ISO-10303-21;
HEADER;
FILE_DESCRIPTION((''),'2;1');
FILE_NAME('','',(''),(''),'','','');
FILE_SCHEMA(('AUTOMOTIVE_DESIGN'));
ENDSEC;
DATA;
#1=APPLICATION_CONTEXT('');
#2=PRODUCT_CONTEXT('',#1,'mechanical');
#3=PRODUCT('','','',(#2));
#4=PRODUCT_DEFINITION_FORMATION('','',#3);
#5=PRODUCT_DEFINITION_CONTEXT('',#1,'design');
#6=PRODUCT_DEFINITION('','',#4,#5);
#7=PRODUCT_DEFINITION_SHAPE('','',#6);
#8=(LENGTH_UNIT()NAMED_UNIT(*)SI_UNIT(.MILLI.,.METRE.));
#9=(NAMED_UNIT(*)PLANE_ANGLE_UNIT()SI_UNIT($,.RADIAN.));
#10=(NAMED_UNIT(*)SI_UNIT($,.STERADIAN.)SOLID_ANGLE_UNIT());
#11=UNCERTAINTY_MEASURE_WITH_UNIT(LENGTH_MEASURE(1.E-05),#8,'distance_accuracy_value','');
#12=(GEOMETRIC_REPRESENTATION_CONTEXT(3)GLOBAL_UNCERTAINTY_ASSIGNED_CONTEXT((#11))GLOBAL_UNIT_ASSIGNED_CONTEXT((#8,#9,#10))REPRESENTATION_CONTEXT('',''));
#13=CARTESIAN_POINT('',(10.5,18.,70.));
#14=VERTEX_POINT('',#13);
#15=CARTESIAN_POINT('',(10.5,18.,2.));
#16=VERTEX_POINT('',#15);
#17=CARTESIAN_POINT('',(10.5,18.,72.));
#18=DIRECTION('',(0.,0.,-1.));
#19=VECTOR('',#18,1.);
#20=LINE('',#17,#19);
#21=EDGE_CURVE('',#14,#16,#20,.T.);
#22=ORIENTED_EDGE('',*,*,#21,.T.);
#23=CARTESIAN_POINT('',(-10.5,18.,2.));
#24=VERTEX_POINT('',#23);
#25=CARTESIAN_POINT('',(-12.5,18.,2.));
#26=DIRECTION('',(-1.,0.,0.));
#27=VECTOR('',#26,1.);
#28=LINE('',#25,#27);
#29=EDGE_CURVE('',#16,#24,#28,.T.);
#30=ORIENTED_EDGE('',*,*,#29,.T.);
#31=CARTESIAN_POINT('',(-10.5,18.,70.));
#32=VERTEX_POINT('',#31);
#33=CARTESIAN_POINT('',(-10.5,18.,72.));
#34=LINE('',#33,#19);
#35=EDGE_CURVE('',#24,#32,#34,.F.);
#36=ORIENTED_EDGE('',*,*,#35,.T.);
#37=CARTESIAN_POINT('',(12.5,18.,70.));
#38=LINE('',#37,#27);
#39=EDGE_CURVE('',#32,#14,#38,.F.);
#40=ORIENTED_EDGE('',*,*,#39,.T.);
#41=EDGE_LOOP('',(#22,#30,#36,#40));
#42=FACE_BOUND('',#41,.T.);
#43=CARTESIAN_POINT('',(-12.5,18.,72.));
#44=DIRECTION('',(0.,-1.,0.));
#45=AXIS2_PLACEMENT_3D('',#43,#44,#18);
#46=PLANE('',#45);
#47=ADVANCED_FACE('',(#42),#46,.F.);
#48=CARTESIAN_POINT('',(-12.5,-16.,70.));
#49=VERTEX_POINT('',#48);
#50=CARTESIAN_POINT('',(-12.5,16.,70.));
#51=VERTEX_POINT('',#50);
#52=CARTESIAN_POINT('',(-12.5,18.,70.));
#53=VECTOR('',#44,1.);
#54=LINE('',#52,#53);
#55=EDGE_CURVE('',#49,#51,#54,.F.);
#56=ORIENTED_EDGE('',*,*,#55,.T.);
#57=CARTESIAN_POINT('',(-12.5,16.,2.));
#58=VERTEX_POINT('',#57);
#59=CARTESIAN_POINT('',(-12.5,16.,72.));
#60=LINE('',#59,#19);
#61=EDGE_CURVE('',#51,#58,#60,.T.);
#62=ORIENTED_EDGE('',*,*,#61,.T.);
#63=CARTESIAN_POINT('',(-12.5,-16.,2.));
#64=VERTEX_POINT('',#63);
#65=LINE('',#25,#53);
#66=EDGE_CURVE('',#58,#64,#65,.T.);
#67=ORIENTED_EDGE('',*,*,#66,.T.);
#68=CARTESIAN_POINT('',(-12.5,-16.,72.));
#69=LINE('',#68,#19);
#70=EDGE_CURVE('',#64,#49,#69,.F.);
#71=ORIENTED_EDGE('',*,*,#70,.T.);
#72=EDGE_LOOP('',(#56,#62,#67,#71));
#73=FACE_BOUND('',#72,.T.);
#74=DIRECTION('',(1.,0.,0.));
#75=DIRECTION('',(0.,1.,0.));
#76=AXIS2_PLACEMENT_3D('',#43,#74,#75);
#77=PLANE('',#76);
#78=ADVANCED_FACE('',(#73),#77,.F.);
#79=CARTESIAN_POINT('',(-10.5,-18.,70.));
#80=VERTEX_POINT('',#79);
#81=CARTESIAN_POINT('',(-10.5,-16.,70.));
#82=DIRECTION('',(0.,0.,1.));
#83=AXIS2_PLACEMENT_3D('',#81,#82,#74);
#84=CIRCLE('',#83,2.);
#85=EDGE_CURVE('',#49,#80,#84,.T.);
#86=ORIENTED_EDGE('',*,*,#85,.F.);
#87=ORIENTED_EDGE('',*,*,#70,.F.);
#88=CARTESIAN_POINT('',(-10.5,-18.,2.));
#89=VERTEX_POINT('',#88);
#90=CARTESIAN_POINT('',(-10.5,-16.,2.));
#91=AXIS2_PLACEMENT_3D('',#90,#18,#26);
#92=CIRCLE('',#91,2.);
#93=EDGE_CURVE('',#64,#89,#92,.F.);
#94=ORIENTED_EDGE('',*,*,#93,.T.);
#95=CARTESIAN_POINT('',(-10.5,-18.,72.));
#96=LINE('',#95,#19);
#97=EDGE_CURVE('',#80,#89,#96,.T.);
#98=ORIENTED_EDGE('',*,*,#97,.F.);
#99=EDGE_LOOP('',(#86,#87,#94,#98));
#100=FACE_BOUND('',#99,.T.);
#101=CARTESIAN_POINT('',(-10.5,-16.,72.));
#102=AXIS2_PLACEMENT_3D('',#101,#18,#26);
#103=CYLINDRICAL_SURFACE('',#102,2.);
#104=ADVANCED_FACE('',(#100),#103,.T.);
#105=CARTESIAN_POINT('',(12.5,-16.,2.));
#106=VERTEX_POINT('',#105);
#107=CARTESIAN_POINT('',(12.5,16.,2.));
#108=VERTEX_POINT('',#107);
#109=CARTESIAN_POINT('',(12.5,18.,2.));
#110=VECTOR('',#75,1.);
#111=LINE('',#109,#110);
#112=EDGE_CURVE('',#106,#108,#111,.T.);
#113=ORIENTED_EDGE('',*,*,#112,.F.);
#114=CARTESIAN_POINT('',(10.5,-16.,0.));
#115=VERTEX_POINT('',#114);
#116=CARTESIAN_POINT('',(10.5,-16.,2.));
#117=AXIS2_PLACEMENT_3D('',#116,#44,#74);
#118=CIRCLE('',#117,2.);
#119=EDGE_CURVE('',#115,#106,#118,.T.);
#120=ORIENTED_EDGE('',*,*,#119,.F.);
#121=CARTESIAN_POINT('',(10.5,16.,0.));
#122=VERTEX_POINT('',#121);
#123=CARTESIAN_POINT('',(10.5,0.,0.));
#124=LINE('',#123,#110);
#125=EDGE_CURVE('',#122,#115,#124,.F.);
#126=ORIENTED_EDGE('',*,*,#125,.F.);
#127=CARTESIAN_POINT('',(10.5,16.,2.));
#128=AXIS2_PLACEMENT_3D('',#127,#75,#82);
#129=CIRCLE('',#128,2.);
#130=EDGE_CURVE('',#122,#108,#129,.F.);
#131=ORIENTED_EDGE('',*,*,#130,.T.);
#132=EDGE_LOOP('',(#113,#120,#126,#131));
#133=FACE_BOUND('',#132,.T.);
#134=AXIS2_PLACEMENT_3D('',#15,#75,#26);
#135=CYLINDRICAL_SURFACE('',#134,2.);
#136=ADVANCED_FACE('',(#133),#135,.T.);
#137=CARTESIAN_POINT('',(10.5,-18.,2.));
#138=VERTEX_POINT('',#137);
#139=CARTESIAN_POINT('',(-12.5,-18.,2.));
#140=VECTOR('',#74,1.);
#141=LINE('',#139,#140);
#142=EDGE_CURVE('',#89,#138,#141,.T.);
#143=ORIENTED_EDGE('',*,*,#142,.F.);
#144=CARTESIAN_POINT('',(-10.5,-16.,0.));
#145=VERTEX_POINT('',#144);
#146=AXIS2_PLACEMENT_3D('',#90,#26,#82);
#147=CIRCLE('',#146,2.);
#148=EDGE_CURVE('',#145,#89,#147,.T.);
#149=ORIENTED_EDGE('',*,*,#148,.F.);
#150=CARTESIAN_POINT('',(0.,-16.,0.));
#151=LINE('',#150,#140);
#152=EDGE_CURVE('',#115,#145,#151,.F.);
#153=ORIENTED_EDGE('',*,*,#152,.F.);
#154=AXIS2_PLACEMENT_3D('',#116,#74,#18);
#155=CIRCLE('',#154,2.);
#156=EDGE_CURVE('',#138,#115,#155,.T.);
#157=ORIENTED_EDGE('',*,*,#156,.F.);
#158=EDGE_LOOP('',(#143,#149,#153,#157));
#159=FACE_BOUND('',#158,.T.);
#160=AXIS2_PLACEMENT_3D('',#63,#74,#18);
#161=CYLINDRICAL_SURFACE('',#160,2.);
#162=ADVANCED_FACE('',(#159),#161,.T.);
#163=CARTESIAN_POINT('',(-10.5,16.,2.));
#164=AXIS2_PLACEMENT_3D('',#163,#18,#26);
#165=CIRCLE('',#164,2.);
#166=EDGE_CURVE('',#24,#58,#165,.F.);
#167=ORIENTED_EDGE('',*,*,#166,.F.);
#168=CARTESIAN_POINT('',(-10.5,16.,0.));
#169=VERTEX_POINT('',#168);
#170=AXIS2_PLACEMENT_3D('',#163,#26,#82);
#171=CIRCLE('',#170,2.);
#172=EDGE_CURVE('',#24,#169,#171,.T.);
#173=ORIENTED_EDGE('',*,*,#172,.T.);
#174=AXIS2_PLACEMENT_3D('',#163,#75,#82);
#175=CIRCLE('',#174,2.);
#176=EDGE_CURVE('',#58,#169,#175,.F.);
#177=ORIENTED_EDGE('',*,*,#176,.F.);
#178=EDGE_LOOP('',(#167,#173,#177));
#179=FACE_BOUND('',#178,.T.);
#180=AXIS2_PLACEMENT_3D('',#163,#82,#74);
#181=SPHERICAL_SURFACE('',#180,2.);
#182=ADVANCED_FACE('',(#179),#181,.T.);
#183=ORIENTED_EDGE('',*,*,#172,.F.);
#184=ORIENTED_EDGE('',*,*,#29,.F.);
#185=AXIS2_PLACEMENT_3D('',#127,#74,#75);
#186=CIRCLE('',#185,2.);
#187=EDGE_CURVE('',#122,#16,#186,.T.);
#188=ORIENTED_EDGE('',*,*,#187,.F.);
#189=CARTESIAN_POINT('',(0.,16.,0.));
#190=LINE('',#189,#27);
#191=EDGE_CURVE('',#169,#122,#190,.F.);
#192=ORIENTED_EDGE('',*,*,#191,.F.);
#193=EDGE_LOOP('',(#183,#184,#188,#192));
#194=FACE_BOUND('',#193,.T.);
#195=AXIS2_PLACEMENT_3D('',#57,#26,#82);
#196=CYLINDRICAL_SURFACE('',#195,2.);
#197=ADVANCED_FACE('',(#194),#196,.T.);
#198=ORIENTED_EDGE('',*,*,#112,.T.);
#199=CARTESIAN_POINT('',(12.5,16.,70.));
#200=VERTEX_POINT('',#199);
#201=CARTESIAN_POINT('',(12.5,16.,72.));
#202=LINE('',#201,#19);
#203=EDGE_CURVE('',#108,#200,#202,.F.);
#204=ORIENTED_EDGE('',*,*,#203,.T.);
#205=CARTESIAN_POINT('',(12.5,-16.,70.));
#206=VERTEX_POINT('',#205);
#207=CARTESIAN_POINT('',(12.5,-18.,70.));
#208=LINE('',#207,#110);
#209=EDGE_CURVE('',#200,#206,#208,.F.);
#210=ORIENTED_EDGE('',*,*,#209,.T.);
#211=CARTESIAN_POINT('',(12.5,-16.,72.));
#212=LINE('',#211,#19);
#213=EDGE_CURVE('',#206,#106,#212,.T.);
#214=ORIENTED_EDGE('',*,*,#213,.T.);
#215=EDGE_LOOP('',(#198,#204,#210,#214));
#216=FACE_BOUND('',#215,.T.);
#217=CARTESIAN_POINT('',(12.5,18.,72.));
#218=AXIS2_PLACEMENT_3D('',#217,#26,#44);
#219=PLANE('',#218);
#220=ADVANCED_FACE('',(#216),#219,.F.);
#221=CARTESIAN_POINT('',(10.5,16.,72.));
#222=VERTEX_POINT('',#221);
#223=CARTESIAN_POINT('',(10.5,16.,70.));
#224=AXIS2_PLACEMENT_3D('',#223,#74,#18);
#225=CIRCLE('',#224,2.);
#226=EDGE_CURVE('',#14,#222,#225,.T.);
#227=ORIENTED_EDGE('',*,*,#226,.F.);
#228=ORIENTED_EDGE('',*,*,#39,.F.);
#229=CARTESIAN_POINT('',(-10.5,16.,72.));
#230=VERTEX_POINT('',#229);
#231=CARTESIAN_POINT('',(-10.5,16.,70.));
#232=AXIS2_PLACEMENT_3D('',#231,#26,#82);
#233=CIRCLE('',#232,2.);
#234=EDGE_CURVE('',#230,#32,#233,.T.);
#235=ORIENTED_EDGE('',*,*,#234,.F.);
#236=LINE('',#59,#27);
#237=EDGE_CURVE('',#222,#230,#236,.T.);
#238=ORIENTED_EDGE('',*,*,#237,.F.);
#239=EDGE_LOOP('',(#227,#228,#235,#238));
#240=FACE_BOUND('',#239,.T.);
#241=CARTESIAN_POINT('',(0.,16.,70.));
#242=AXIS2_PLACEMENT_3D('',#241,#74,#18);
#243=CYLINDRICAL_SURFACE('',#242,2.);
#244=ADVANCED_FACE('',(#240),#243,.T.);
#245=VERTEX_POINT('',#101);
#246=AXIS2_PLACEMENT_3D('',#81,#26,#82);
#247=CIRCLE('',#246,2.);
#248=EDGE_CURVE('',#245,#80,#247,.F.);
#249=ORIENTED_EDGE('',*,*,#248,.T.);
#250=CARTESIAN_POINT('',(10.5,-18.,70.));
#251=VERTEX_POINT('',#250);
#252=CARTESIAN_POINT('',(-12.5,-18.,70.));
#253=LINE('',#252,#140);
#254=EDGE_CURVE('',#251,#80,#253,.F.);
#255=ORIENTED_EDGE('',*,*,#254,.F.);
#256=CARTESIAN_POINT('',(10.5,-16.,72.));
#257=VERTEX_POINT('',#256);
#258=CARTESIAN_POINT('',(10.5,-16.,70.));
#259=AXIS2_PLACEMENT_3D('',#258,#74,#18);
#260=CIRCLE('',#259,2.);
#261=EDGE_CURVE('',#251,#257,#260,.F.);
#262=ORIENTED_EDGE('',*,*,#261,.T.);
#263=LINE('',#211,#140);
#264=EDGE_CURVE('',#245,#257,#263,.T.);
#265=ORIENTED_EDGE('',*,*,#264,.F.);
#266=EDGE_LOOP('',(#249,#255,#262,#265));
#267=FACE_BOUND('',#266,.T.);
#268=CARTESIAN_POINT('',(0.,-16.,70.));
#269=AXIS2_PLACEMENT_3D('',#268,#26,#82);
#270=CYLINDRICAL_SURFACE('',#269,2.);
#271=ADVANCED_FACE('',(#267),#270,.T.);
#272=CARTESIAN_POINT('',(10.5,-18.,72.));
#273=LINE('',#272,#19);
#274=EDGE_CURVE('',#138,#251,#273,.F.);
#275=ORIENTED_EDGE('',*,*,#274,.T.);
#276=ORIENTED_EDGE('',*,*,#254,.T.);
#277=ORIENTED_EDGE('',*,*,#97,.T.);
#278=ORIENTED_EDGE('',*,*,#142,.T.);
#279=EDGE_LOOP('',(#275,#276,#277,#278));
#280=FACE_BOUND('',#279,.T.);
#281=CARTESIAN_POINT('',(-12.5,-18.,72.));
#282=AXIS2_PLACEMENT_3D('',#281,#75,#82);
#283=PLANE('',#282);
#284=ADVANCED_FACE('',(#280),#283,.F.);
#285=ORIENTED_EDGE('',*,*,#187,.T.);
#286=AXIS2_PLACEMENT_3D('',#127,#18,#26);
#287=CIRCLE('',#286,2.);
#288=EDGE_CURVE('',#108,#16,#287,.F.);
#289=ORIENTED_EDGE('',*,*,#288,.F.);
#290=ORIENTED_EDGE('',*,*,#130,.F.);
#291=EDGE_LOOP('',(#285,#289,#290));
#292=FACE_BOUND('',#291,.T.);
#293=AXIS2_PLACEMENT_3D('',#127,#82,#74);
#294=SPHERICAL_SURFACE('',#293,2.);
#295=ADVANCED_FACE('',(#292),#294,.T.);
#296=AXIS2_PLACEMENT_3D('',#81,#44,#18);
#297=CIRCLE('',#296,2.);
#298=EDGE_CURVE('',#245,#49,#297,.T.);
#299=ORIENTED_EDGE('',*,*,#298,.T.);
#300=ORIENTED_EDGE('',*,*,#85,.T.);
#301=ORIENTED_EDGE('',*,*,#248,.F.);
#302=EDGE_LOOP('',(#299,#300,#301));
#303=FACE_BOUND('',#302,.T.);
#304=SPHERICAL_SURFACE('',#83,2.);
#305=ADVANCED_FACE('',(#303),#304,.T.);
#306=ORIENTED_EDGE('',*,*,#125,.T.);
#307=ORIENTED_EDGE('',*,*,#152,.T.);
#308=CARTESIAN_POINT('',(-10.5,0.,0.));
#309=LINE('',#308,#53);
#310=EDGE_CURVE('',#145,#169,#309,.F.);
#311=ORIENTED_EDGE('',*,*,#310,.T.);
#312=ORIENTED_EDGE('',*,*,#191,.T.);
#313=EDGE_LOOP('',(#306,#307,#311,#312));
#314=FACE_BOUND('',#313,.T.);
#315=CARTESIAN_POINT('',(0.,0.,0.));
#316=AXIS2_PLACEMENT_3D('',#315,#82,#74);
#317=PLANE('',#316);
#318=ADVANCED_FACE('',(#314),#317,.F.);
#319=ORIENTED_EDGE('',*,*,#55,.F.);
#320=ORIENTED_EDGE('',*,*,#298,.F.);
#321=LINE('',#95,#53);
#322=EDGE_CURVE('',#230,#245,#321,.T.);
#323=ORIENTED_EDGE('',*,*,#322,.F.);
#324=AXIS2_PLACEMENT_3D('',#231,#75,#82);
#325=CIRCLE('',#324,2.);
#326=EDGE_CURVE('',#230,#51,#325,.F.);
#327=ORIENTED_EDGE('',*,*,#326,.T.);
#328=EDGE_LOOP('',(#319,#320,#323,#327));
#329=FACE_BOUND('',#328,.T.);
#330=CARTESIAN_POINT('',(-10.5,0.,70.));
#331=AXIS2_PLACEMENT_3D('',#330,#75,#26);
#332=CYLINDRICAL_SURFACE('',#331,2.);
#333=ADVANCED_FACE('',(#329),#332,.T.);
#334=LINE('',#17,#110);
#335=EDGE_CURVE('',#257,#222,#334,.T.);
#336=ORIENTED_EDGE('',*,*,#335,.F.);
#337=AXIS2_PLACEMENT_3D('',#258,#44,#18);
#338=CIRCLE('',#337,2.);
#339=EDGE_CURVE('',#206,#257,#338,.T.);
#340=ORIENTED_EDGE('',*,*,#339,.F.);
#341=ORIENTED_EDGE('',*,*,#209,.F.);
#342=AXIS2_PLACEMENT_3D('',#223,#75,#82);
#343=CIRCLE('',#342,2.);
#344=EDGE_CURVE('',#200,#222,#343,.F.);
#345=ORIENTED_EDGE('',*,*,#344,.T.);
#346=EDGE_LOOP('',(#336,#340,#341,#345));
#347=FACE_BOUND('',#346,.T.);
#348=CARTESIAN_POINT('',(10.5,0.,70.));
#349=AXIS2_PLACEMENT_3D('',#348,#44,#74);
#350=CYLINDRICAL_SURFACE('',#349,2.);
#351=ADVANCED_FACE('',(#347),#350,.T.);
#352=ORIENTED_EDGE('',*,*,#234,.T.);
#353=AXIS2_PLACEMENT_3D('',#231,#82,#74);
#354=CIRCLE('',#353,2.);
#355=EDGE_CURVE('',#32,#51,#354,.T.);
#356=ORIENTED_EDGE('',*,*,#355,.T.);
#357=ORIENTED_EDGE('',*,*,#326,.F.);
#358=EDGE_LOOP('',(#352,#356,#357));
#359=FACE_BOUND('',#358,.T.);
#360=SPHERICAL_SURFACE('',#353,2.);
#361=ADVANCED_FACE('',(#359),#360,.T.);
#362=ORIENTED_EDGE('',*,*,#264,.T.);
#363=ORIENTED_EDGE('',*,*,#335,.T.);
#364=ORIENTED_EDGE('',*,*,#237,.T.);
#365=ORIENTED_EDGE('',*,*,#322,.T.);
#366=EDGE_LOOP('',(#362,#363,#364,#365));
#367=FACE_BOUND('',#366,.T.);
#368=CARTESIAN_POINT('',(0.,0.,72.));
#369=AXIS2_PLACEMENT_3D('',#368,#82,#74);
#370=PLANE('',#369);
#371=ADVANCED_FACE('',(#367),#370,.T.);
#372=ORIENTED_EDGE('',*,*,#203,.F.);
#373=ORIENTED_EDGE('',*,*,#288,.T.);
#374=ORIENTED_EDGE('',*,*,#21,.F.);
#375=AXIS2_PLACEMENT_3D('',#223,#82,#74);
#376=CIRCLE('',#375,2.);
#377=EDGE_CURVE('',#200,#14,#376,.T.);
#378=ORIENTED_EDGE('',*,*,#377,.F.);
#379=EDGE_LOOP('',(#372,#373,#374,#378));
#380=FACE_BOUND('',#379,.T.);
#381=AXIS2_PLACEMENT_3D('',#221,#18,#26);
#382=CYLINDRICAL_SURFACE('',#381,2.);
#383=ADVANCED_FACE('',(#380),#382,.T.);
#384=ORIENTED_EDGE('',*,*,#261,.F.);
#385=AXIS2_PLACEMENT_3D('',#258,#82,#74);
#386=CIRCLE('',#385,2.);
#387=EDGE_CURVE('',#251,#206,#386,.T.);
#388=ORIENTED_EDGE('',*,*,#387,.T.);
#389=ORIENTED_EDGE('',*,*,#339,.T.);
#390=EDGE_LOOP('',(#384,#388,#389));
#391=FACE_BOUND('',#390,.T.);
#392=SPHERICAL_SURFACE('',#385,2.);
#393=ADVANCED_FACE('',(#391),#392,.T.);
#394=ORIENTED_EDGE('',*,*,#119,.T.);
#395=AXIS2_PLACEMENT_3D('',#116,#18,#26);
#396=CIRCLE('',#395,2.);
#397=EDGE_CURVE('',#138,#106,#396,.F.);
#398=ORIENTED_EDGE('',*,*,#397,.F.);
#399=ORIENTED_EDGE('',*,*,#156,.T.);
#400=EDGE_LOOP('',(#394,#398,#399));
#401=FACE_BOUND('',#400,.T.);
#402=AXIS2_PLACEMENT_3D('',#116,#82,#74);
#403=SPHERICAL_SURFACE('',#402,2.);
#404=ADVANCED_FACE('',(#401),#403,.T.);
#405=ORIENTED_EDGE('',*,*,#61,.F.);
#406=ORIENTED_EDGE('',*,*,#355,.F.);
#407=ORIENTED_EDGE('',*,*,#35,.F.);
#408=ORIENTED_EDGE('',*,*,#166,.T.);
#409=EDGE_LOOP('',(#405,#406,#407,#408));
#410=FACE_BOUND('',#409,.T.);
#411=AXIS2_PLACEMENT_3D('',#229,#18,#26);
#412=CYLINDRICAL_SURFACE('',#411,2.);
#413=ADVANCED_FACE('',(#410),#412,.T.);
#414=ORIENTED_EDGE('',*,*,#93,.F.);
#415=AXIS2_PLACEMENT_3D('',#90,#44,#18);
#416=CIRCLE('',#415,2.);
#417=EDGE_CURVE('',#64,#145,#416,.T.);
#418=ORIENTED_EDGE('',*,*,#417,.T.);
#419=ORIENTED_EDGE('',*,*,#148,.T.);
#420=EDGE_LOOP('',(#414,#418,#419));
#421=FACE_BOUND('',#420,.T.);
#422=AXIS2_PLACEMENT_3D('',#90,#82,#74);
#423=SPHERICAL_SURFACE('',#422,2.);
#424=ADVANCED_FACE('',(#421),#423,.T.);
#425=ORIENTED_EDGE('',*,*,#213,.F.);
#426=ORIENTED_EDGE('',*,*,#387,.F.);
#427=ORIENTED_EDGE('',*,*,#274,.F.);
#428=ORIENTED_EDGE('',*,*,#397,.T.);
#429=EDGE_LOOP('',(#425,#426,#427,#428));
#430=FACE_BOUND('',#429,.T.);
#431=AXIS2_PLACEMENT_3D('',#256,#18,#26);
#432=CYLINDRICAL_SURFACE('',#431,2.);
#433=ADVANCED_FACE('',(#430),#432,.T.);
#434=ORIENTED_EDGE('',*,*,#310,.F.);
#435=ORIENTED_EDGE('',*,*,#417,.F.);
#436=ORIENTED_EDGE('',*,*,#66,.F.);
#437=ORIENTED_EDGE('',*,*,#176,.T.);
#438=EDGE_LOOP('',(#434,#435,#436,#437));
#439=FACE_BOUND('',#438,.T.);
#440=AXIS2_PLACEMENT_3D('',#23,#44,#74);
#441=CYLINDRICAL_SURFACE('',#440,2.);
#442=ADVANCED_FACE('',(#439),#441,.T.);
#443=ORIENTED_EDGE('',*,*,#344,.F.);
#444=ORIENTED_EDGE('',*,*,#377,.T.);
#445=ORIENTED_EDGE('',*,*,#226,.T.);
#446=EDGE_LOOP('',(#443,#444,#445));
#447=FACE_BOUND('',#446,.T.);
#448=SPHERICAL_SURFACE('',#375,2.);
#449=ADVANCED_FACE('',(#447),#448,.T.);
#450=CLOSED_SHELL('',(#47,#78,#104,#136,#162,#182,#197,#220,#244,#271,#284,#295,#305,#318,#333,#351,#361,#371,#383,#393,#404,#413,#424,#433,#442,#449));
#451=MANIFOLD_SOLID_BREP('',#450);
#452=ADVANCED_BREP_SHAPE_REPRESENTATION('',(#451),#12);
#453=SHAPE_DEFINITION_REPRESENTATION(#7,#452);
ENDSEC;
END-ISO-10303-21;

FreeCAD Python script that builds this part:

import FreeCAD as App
import Part
import Sketcher
from FreeCAD import Vector


def add_polygon(sketch, points):
    """Adds a closed chain of lines whose ends are joined by coincident constraints."""
    first, n = sketch.GeometryCount, len(points)
    for a, b in zip(points, points[1:] + points[:1]):
        sketch.addGeometry(Part.LineSegment(App.Vector(*a, 0), App.Vector(*b, 0)), False)
    for i in range(n):
        sketch.addConstraint(Sketcher.Constraint("Coincident", first + i, 2, first + (i + 1) % n, 1))

doc = App.newDocument("Part")
params = doc.addObject("Spreadsheet::Sheet", "Params")
for row, (alias, value) in enumerate([
    ("sketch1_width", "25 mm"),
    ("sketch1_height", "36 mm"),
    ("pad1_length", "72 mm"),
    ("fillet_radius", "2 mm"),
], start=1):
    params.set(f"A{row}", alias)
    params.set(f"B{row}", "=" + value)
    params.setAlias(f"B{row}", alias)

body = doc.addObject("PartDesign::Body", "Body")

sketch1 = body.newObject("Sketcher::SketchObject", "Sketch")
sketch1.AttachmentSupport = (doc.getObject("XY_Plane"), [""])
sketch1.MapMode = "FlatFace"
add_polygon(sketch1, [(-12, 18), (-12, -18), (12, -18), (12, 18)])
sketch1.addConstraint(Sketcher.Constraint("Vertical", 0))
sketch1.addConstraint(Sketcher.Constraint("Horizontal", 1))
sketch1.addConstraint(Sketcher.Constraint("Vertical", 2))
sketch1.addConstraint(Sketcher.Constraint("Horizontal", 3))
sketch1.addConstraint(Sketcher.Constraint("Symmetric", 0, 2, 2, 2, -1, 1))
sketch1.addConstraint(Sketcher.Constraint("DistanceX", 1, 1, 1, 2, 25.0))
sketch1.addConstraint(Sketcher.Constraint("DistanceY", 0, 2, 0, 1, 36.0))
sketch1.setExpression("Constraints[9]", "Params.sketch1_width")
sketch1.setExpression("Constraints[10]", "Params.sketch1_height")
pad1 = body.newObject("PartDesign::Pad", "Pad")
pad1.Profile = sketch1
pad1.setExpression("Length", "Params.pad1_length")
doc.recompute()

fillet = body.newObject("PartDesign::Fillet", "Fillet")
fillet.Base = (pad1, ["Edge1"])
fillet.UseAllEdges = True
fillet.setExpression("Radius", "Params.fillet_radius")

doc.recompute()
